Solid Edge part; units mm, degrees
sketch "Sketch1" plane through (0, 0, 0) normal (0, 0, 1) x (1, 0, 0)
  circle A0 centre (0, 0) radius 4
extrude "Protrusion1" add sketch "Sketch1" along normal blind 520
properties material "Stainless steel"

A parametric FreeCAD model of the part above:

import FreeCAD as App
import Part
import Sketcher
Q = App.Units.Quantity

doc = App.newDocument("Part")
body = doc.addObject("PartDesign::Body", "Body")

sketch1 = doc.addObject("Sketcher::SketchObject", "Sketch")
body.addObject(sketch1)
sketch1.AttachmentSupport = (doc.XY_Plane, [""])
sketch1.MapMode = "FlatFace"
sketch1.addGeometry(Part.Circle(App.Vector(0, 0, 0), App.Vector(0, 0, 1), 4), False)
sketch1.addConstraint([
    Sketcher.Constraint("Coincident", 0, 3, -1, 1),
    Sketcher.Constraint("Diameter", 0, Q("8 mm")),
])
pad1 = doc.addObject("PartDesign::Pad", "Pad")
body.addObject(pad1)
pad1.Profile = sketch1
pad1.Length = 520

doc.recompute()
